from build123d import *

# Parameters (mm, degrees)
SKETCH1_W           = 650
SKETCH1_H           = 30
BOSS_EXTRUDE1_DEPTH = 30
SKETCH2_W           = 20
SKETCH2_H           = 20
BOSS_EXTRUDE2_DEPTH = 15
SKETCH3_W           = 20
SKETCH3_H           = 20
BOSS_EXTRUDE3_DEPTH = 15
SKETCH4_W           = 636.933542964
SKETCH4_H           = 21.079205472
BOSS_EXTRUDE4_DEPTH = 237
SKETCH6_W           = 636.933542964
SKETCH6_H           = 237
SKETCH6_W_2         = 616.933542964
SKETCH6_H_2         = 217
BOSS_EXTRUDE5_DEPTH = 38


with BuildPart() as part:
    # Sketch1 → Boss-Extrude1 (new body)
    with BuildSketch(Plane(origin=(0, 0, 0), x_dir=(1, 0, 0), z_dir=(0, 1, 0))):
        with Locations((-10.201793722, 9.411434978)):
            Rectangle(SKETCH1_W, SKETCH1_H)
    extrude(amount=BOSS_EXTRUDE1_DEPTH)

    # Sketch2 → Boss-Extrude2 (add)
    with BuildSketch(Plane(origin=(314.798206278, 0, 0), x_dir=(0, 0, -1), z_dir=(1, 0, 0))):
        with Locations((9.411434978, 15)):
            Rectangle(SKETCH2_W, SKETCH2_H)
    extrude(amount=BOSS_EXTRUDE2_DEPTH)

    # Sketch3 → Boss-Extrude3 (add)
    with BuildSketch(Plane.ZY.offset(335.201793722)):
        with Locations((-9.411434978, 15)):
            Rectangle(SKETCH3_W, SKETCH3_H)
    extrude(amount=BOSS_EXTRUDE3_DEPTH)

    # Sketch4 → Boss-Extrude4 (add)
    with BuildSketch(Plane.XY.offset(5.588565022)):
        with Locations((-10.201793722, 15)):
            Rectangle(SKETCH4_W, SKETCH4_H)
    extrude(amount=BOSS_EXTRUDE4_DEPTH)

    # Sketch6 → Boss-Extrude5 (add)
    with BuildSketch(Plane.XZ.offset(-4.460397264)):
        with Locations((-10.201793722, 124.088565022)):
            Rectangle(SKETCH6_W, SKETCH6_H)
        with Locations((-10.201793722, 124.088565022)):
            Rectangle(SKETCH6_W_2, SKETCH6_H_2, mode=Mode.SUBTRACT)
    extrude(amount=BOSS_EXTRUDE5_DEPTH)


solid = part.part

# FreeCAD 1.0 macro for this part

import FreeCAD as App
import Part
import Sketcher

V = App.Vector
Q = App.Units.Quantity

doc = App.newDocument("Part")
body = doc.addObject("PartDesign::Body", "Body")

sketch1 = body.newObject("Sketcher::SketchObject", "Sketch")
sketch1.AttachmentSupport = (doc.getObject("XZ_Plane"), [""])
sketch1.MapMode = "FlatFace"
sketch1.addGeometry(Part.LineSegment(V(-335, -24, 0), V(-335, 6, 0)), False)
sketch1.addGeometry(Part.LineSegment(V(-335, 6, 0), V(315, 6, 0)), False)
sketch1.addGeometry(Part.LineSegment(V(315, 6, 0), V(315, -24, 0)), False)
sketch1.addGeometry(Part.LineSegment(V(315, -24, 0), V(-335, -24, 0)), False)
sketch1.addConstraint(Sketcher.Constraint("Coincident", 0, 2, 1, 1))
sketch1.addConstraint(Sketcher.Constraint("Coincident", 1, 2, 2, 1))
sketch1.addConstraint(Sketcher.Constraint("Coincident", 2, 2, 3, 1))
sketch1.addConstraint(Sketcher.Constraint("Coincident", 3, 2, 0, 1))
sketch1.addConstraint(Sketcher.Constraint("Vertical", 0))
sketch1.addConstraint(Sketcher.Constraint("Horizontal", 1))
sketch1.addConstraint(Sketcher.Constraint("Vertical", 2))
sketch1.addConstraint(Sketcher.Constraint("Horizontal", 3))
sketch1.addConstraint(Sketcher.Constraint("DistanceX", 1, 1, 1, 2, Q("650 mm")))
sketch1.addConstraint(Sketcher.Constraint("DistanceY", 0, 1, 0, 2, Q("30 mm")))
sketch1.addConstraint(Sketcher.Constraint("DistanceX", 0, 2, -1, 1, Q("335.201794 mm")))
sketch1.addConstraint(Sketcher.Constraint("DistanceY", -1, 1, 0, 2, Q("5.588565 mm")))
pad1 = body.newObject("PartDesign::Pad", "Pad")
pad1.Profile = sketch1
pad1.Length = 30
pad1.Reversed = True

sketch2 = body.newObject("Sketcher::SketchObject", "Sketch001")
sketch2.AttachmentSupport = (doc.getObject("YZ_Plane"), [""])
sketch2.MapMode = "FlatFace"
sketch2.AttachmentOffset = App.Placement(V(0, 0, 314.798206), App.Rotation())
sketch2.addGeometry(Part.LineSegment(V(25, 1, 0), V(5, 1, 0)), False)
sketch2.addGeometry(Part.LineSegment(V(5, 1, 0), V(5, -19, 0)), False)
sketch2.addGeometry(Part.LineSegment(V(5, -19, 0), V(25, -19, 0)), False)
sketch2.addGeometry(Part.LineSegment(V(25, -19, 0), V(25, 1, 0)), False)
sketch2.addConstraint(Sketcher.Constraint("Coincident", 0, 2, 1, 1))
sketch2.addConstraint(Sketcher.Constraint("Coincident", 1, 2, 2, 1))
sketch2.addConstraint(Sketcher.Constraint("Coincident", 2, 2, 3, 1))
sketch2.addConstraint(Sketcher.Constraint("Coincident", 3, 2, 0, 1))
sketch2.addConstraint(Sketcher.Constraint("Horizontal", 0))
sketch2.addConstraint(Sketcher.Constraint("Vertical", 1))
sketch2.addConstraint(Sketcher.Constraint("Horizontal", 2))
sketch2.addConstraint(Sketcher.Constraint("Vertical", 3))
sketch2.addConstraint(Sketcher.Constraint("Equal", 2, 1))
sketch2.addConstraint(Sketcher.Constraint("DistanceX", 0, 2, 0, 1, Q("20 mm")))
sketch2.addConstraint(Sketcher.Constraint("DistanceX", -1, 1, 0, 2, Q("5 mm")))
sketch2.addConstraint(Sketcher.Constraint("DistanceY", -1, 1, 0, 2, Q("0.588565 mm")))
pad2 = body.newObject("PartDesign::Pad", "Pad001")
pad2.Profile = sketch2
pad2.Length = 15

sketch3 = body.newObject("Sketcher::SketchObject", "Sketch002")
sketch3.AttachmentSupport = (doc.getObject("YZ_Plane"), [""])
sketch3.MapMode = "FlatFace"
sketch3.AttachmentOffset = App.Placement(V(0, 0, -335.201794), App.Rotation())
sketch3.addGeometry(Part.LineSegment(V(25, -19, 0), V(5, -19, 0)), False)
sketch3.addGeometry(Part.LineSegment(V(5, -19, 0), V(5, 1, 0)), False)
sketch3.addGeometry(Part.LineSegment(V(5, 1, 0), V(25, 1, 0)), False)
sketch3.addGeometry(Part.LineSegment(V(25, 1, 0), V(25, -19, 0)), False)
sketch3.addConstraint(Sketcher.Constraint("Coincident", 0, 2, 1, 1))
sketch3.addConstraint(Sketcher.Constraint("Coincident", 1, 2, 2, 1))
sketch3.addConstraint(Sketcher.Constraint("Coincident", 2, 2, 3, 1))
sketch3.addConstraint(Sketcher.Constraint("Coincident", 3, 2, 0, 1))
sketch3.addConstraint(Sketcher.Constraint("Horizontal", 0))
sketch3.addConstraint(Sketcher.Constraint("Vertical", 1))
sketch3.addConstraint(Sketcher.Constraint("Horizontal", 2))
sketch3.addConstraint(Sketcher.Constraint("Vertical", 3))
sketch3.addConstraint(Sketcher.Constraint("Equal", 2, 1))
sketch3.addConstraint(Sketcher.Constraint("DistanceX", 0, 2, 0, 1, Q("20 mm")))
sketch3.addConstraint(Sketcher.Constraint("DistanceX", -1, 1, 0, 2, Q("5 mm")))
sketch3.addConstraint(Sketcher.Constraint("DistanceY", 0, 2, -1, 1, Q("19.411435 mm")))
pad3 = body.newObject("PartDesign::Pad", "Pad002")
pad3.Profile = sketch3
pad3.Length = 15
pad3.Reversed = True

sketch4 = body.newObject("Sketcher::SketchObject", "Sketch003")
sketch4.AttachmentSupport = (doc.getObject("XY_Plane"), [""])
sketch4.MapMode = "FlatFace"
sketch4.AttachmentOffset = App.Placement(V(0, 0, 5.588565), App.Rotation())
sketch4.addGeometry(Part.LineSegment(V(-329, 26, 0), V(-329, 4, 0)), False)
sketch4.addGeometry(Part.LineSegment(V(-329, 4, 0), V(308, 4, 0)), False)
sketch4.addGeometry(Part.LineSegment(V(308, 4, 0), V(308, 26, 0)), False)
sketch4.addGeometry(Part.LineSegment(V(308, 26, 0), V(-329, 26, 0)), False)
sketch4.addConstraint(Sketcher.Constraint("Coincident", 0, 2, 1, 1))
sketch4.addConstraint(Sketcher.Constraint("Coincident", 1, 2, 2, 1))
sketch4.addConstraint(Sketcher.Constraint("Coincident", 2, 2, 3, 1))
sketch4.addConstraint(Sketcher.Constraint("Coincident", 3, 2, 0, 1))
sketch4.addConstraint(Sketcher.Constraint("Vertical", 0))
sketch4.addConstraint(Sketcher.Constraint("Horizontal", 1))
sketch4.addConstraint(Sketcher.Constraint("Vertical", 2))
sketch4.addConstraint(Sketcher.Constraint("Horizontal", 3))
sketch4.addConstraint(Sketcher.Constraint("DistanceX", 1, 1, 1, 2, Q("636.933543 mm")))
sketch4.addConstraint(Sketcher.Constraint("DistanceY", 0, 2, 0, 1, Q("21.079205 mm")))
sketch4.addConstraint(Sketcher.Constraint("DistanceX", 0, 2, -1, 1, Q("328.668565 mm")))
sketch4.addConstraint(Sketcher.Constraint("DistanceY", -1, 1, 0, 2, Q("4.460397 mm")))
pad4 = body.newObject("PartDesign::Pad", "Pad003")
pad4.Profile = sketch4
pad4.Length = 237

sketch5 = body.newObject("Sketcher::SketchObject", "Sketch004")
sketch5.AttachmentSupport = (doc.getObject("XZ_Plane"), [""])
sketch5.MapMode = "FlatFace"
sketch5.AttachmentOffset = App.Placement(V(0, 0, -4.460397), App.Rotation())
sketch5.addGeometry(Part.LineSegment(V(-329, 243, 0), V(-329, 6, 0)), False)
sketch5.addGeometry(Part.LineSegment(V(-329, 6, 0), V(308, 6, 0)), False)
sketch5.addGeometry(Part.LineSegment(V(308, 6, 0), V(308, 243, 0)), False)
sketch5.addGeometry(Part.LineSegment(V(308, 243, 0), V(-329, 243, 0)), False)
sketch5.addGeometry(Part.LineSegment(V(298, 16, 0), V(-319, 16, 0)), False)
sketch5.addGeometry(Part.LineSegment(V(-319, 16, 0), V(-319, 233, 0)), False)
sketch5.addGeometry(Part.LineSegment(V(-319, 233, 0), V(298, 233, 0)), False)
sketch5.addGeometry(Part.LineSegment(V(298, 233, 0), V(298, 16, 0)), False)
sketch5.addConstraint(Sketcher.Constraint("Coincident", 0, 2, 1, 1))
sketch5.addConstraint(Sketcher.Constraint("Coincident", 1, 2, 2, 1))
sketch5.addConstraint(Sketcher.Constraint("Coincident", 2, 2, 3, 1))
sketch5.addConstraint(Sketcher.Constraint("Coincident", 3, 2, 0, 1))
sketch5.addConstraint(Sketcher.Constraint("Coincident", 4, 2, 5, 1))
sketch5.addConstraint(Sketcher.Constraint("Coincident", 5, 2, 6, 1))
sketch5.addConstraint(Sketcher.Constraint("Coincident", 6, 2, 7, 1))
sketch5.addConstraint(Sketcher.Constraint("Coincident", 7, 2, 4, 1))
sketch5.addConstraint(Sketcher.Constraint("Vertical", 0))
sketch5.addConstraint(Sketcher.Constraint("Horizontal", 1))
sketch5.addConstraint(Sketcher.Constraint("Vertical", 2))
sketch5.addConstraint(Sketcher.Constraint("Horizontal", 3))
sketch5.addConstraint(Sketcher.Constraint("Horizontal", 4))
sketch5.addConstraint(Sketcher.Constraint("Vertical", 5))
sketch5.addConstraint(Sketcher.Constraint("Horizontal", 6))
sketch5.addConstraint(Sketcher.Constraint("Vertical", 7))
sketch5.addConstraint(Sketcher.Constraint("DistanceY", 0, 2, 0, 1, Q("237 mm")))
sketch5.addConstraint(Sketcher.Constraint("DistanceY", 5, 1, 5, 2, Q("217 mm")))
sketch5.addConstraint(Sketcher.Constraint("DistanceX", 0, 2, 4, 2, Q("10 mm")))
sketch5.addConstraint(Sketcher.Constraint("DistanceY", 0, 2, 4, 2, Q("10 mm")))
sketch5.addConstraint(Sketcher.Constraint("DistanceX", 6, 2, 2, 2, Q("10 mm")))
sketch5.addConstraint(Sketcher.Constraint("DistanceX", 1, 1, 1, 2, Q("636.933543 mm")))
sketch5.addConstraint(Sketcher.Constraint("DistanceX", 0, 2, -1, 1, Q("328.668565 mm")))
sketch5.addConstraint(Sketcher.Constraint("DistanceY", -1, 1, 0, 2, Q("5.588565 mm")))
pad5 = body.newObject("PartDesign::Pad", "Pad004")
pad5.Profile = sketch5
pad5.Length = 38

doc.recompute()
